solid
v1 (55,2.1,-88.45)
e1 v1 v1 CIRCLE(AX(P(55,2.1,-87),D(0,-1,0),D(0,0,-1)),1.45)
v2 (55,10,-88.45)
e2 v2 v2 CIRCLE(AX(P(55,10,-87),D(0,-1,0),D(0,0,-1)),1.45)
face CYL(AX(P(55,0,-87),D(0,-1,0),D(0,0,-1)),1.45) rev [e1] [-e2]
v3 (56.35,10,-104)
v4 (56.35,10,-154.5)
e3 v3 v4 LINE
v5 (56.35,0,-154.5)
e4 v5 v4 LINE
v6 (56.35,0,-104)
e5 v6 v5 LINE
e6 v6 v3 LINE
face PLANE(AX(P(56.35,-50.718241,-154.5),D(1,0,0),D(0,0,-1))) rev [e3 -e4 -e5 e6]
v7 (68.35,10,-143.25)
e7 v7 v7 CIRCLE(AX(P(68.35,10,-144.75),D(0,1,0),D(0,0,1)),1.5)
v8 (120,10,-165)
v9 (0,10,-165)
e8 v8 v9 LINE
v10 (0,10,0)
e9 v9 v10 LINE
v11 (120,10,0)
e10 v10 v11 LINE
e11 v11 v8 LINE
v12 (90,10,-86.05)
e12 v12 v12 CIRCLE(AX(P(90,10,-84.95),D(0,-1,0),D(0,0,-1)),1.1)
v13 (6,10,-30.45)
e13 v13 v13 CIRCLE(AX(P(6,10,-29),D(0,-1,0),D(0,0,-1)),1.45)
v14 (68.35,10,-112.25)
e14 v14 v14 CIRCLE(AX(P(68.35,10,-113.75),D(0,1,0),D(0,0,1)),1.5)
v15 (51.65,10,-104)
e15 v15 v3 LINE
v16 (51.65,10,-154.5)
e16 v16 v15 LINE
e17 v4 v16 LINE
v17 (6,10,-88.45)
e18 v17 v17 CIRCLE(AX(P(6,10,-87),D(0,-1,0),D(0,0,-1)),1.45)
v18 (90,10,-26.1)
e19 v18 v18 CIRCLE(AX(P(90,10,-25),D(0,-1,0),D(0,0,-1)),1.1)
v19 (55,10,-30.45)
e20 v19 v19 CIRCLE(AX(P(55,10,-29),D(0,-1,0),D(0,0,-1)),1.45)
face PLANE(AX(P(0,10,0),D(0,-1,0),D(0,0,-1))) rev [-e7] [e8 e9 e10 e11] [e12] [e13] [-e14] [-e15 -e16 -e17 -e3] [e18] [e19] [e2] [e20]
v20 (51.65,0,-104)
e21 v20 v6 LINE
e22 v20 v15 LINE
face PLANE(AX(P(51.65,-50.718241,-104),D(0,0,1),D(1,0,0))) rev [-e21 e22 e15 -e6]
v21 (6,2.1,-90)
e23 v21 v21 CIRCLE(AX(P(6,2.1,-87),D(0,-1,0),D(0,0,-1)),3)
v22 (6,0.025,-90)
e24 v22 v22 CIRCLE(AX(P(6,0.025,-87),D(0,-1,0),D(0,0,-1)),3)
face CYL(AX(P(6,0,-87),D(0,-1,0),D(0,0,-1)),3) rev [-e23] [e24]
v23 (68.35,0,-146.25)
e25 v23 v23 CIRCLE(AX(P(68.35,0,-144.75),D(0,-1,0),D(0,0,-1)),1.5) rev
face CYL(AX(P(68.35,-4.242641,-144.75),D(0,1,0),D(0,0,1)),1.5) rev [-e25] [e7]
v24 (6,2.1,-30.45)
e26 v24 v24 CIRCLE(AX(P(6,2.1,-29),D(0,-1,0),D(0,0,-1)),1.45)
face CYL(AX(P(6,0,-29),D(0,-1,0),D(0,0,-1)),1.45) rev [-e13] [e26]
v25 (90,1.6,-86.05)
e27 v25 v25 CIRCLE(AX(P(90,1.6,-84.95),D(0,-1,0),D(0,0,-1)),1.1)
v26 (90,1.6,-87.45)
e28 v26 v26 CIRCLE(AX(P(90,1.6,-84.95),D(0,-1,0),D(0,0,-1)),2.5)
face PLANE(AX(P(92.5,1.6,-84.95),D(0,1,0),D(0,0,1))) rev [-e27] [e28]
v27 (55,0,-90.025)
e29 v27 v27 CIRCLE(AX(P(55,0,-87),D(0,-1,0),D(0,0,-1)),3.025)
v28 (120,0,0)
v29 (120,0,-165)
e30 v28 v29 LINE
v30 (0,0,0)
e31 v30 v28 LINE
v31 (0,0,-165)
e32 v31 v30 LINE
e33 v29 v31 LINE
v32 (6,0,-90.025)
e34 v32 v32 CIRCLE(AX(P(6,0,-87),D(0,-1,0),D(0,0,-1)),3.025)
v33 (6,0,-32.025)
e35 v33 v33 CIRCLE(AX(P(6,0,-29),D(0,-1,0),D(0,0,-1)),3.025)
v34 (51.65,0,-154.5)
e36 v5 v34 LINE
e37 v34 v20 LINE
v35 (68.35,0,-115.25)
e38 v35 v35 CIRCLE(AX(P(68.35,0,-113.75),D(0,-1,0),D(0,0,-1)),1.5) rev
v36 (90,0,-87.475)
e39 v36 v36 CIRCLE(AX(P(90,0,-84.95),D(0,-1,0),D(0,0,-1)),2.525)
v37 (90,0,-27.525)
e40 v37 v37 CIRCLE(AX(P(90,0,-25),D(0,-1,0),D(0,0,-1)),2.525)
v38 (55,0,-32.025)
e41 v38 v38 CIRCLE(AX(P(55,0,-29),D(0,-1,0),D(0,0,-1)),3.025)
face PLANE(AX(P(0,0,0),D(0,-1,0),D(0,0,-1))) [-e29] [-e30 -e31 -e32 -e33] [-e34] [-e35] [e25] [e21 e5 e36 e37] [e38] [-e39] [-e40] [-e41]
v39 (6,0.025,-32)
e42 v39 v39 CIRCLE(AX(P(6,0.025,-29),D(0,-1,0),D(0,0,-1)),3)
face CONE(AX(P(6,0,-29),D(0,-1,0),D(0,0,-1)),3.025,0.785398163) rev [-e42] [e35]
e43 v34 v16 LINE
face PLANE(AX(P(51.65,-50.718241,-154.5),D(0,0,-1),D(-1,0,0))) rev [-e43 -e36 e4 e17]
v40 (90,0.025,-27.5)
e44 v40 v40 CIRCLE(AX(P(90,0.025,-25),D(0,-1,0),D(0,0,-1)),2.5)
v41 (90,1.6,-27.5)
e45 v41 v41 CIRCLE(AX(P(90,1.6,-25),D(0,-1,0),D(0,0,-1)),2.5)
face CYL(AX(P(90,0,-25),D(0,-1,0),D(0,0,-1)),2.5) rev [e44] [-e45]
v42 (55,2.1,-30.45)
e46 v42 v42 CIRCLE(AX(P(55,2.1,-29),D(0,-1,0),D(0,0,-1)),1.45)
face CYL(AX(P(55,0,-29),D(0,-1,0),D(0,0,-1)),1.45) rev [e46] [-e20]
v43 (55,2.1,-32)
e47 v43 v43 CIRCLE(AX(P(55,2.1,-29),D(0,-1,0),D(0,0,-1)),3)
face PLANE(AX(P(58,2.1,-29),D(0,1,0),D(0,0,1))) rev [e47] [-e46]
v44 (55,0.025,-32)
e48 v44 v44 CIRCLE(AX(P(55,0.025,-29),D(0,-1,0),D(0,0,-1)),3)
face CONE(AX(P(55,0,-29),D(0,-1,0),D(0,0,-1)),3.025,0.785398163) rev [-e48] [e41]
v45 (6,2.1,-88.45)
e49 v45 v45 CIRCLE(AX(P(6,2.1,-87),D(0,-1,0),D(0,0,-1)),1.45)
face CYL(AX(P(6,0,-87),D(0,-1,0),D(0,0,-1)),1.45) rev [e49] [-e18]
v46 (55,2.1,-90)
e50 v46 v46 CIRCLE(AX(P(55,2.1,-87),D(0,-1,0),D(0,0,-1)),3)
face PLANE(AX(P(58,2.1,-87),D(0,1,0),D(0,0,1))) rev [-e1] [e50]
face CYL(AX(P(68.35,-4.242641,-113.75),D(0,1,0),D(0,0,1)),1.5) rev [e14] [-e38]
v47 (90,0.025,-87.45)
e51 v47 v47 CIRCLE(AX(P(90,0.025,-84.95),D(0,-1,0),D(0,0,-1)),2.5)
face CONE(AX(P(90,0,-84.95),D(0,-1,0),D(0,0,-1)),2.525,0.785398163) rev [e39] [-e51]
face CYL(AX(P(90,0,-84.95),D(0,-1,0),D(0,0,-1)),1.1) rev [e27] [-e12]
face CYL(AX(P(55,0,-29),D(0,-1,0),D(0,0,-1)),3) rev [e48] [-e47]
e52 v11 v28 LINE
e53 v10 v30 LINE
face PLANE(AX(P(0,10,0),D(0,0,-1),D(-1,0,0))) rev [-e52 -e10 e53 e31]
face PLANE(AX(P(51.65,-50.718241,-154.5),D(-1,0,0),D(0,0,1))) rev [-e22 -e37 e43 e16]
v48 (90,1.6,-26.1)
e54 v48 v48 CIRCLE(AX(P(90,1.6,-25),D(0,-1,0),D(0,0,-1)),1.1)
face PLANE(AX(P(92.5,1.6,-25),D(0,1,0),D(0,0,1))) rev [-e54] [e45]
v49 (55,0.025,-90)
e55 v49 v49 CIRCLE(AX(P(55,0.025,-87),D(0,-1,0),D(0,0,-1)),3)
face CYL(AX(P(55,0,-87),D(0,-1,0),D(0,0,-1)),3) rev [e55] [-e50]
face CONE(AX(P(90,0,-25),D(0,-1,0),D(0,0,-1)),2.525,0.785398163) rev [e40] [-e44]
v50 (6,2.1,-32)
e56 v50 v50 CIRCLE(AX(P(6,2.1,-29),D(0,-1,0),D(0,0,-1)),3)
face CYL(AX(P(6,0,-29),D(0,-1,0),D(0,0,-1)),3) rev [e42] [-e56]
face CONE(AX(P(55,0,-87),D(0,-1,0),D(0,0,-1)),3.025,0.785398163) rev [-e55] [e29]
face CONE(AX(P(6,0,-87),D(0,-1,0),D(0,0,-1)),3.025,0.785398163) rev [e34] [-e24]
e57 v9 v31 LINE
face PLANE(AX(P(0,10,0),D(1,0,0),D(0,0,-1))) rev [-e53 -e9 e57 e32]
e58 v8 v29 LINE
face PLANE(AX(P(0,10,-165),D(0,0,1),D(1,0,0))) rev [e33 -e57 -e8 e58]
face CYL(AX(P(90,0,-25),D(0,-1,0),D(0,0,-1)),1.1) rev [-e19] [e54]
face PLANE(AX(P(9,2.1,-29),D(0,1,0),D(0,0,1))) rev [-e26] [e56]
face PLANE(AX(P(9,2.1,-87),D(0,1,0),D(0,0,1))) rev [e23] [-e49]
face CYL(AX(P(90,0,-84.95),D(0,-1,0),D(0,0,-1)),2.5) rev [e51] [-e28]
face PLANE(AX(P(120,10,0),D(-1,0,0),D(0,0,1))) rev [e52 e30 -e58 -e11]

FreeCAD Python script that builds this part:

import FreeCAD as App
import Part
import Sketcher

V = App.Vector
Q = App.Units.Quantity


def add_polygon(sketch, points):
    """Adds a closed chain of lines whose ends are joined by coincident constraints."""
    first, n = sketch.GeometryCount, len(points)
    for a, b in zip(points, points[1:] + points[:1]):
        sketch.addGeometry(Part.LineSegment(App.Vector(*a, 0), App.Vector(*b, 0)), False)
    for i in range(n):
        sketch.addConstraint(Sketcher.Constraint("Coincident", first + i, 2, first + (i + 1) % n, 1))

doc = App.newDocument("Part")
body = doc.addObject("PartDesign::Body", "Body")

# Sketch on XZ plane
sketch1 = doc.addObject("Sketcher::SketchObject", "Sketch")
body.addObject(sketch1)
sketch1.AttachmentSupport = (doc.XZ_Plane, [""])
sketch1.MapMode = "FlatFace"
add_polygon(sketch1, [(0, -165), (0, 0), (120, 0), (120, -165)])  # lines 0-3
sketch1.addConstraint(Sketcher.Constraint("Vertical", 0))
sketch1.addConstraint(Sketcher.Constraint("Horizontal", 1))
sketch1.addConstraint(Sketcher.Constraint("Vertical", 2))
sketch1.addConstraint(Sketcher.Constraint("Horizontal", 3))
sketch1.addConstraint(Sketcher.Constraint("Coincident", 0, 2, -1, 1))
sketch1.addConstraint(Sketcher.Constraint("DistanceX", 1, 1, 1, 2, Q("120 mm")))
sketch1.addConstraint(Sketcher.Constraint("DistanceY", 0, 1, 0, 2, Q("165 mm")))
pad1 = doc.addObject("PartDesign::Pad", "Pad")
body.addObject(pad1)
pad1.Profile = sketch1
pad1.Length = 10
pad1.Reversed = True

# Sketch on YZ plane
sketch2 = doc.addObject("Sketcher::SketchObject", "Sketch001")
body.addObject(sketch2)
sketch2.AttachmentSupport = (doc.YZ_Plane, [""])
sketch2.MapMode = "FlatFace"
sketch2.AttachmentOffset = App.Placement(V(0, 0, 6), App.Rotation())
add_polygon(sketch2, [(10, -29), (0, -29), (0, -32.025), (0.025, -32), (2.1, -32), (2.1, -30.45), (10, -30.45)])  # lines 0-6
sketch2.addGeometry(Part.LineSegment(V(0, -29, 0), V(10, -29, 0)), True)  # axis
sketch2.addConstraint(Sketcher.Constraint("Horizontal", 0))
sketch2.addConstraint(Sketcher.Constraint("Vertical", 1))
sketch2.addConstraint(Sketcher.Constraint("Horizontal", 3))
sketch2.addConstraint(Sketcher.Constraint("Vertical", 4))
sketch2.addConstraint(Sketcher.Constraint("Horizontal", 5))
sketch2.addConstraint(Sketcher.Constraint("Vertical", 6))
sketch2.addConstraint(Sketcher.Constraint("Horizontal", 7))
sketch2.addConstraint(Sketcher.Constraint("Coincident", 7, 1, 0, 2))
sketch2.addConstraint(Sketcher.Constraint("PointOnObject", 0, 2, -2))
sketch2.addConstraint(Sketcher.Constraint("Vertical", 5, 2, 7, 2))
sketch2.addConstraint(Sketcher.Constraint("DistanceX", 0, 2, 0, 1, Q("10 mm")))
sketch2.addConstraint(Sketcher.Constraint("Angle", 2, Q("45 deg")))
sketch2.addConstraint(Sketcher.Constraint("DistanceX", 5, 1, 5, 2, Q("7.9 mm")))
sketch2.addConstraint(Sketcher.Constraint("DistanceY", 0, 2, -1, 1, Q("29 mm")))
sketch2.addConstraint(Sketcher.Constraint("DistanceY", 2, 2, -1, 1, Q("32 mm")))
sketch2.addConstraint(Sketcher.Constraint("DistanceY", 4, 1, 4, 2, Q("1.55 mm")))
sketch2.addConstraint(Sketcher.Constraint("DistanceX", 3, 1, 3, 2, Q("2.075 mm")))
groove = doc.addObject("PartDesign::Groove", "Groove")
body.addObject(groove)
groove.Profile = sketch2
groove.ReferenceAxis = (sketch2, ["Axis0"])
groove.Angle = 360
doc.recompute()

linearpattern = doc.addObject("PartDesign::LinearPattern", "LinearPattern")
body.addObject(linearpattern)
linearpattern.Originals = [groove]
linearpattern.Direction = (doc.X_Axis, [""])
linearpattern.Mode = "offset"
linearpattern.Offset = 49
linearpattern.Occurrences = 2
body.Tip = linearpattern
doc.recompute()

datumline = doc.addObject("PartDesign::Line", "DatumLine")
body.addObject(datumline)
datumline.Placement = App.Placement(V(0, 0, 0), App.Rotation(V(0, 0, 1), V(0.645351649, 0, -0.763885626)))
linearpattern2 = doc.addObject("PartDesign::LinearPattern", "LinearPattern001")
body.addObject(linearpattern2)
linearpattern2.Originals = [groove]
linearpattern2.Direction = (datumline, [""])
linearpattern2.Mode = "offset"
linearpattern2.Offset = 75.927597
linearpattern2.Occurrences = 2
body.Tip = linearpattern2
doc.recompute()

linearpattern3 = doc.addObject("PartDesign::LinearPattern", "LinearPattern002")
body.addObject(linearpattern3)
linearpattern3.Originals = [groove]
linearpattern3.Direction = (doc.Z_Axis, [""])
linearpattern3.Mode = "offset"
linearpattern3.Offset = 58
linearpattern3.Occurrences = 2
linearpattern3.Reversed = True
body.Tip = linearpattern3

# Sketch on YZ plane
sketch3 = doc.addObject("Sketcher::SketchObject", "Sketch002")
body.addObject(sketch3)
sketch3.AttachmentSupport = (doc.YZ_Plane, [""])
sketch3.MapMode = "FlatFace"
sketch3.AttachmentOffset = App.Placement(V(0, 0, 90), App.Rotation())
add_polygon(sketch3, [(10, -25), (0, -25), (0, -27.525), (0.025, -27.5), (1.6, -27.5), (1.6, -26.1), (10, -26.1)])  # lines 0-6
sketch3.addGeometry(Part.LineSegment(V(0, -25, 0), V(10, -25, 0)), True)  # axis
sketch3.addConstraint(Sketcher.Constraint("Horizontal", 0))
sketch3.addConstraint(Sketcher.Constraint("Vertical", 1))
sketch3.addConstraint(Sketcher.Constraint("Horizontal", 3))
sketch3.addConstraint(Sketcher.Constraint("Vertical", 4))
sketch3.addConstraint(Sketcher.Constraint("Horizontal", 5))
sketch3.addConstraint(Sketcher.Constraint("Vertical", 6))
sketch3.addConstraint(Sketcher.Constraint("Horizontal", 7))
sketch3.addConstraint(Sketcher.Constraint("Coincident", 7, 1, 0, 2))
sketch3.addConstraint(Sketcher.Constraint("PointOnObject", 0, 2, -2))
sketch3.addConstraint(Sketcher.Constraint("Vertical", 5, 2, 7, 2))
sketch3.addConstraint(Sketcher.Constraint("DistanceX", 0, 2, 0, 1, Q("10 mm")))
sketch3.addConstraint(Sketcher.Constraint("Angle", 2, Q("45 deg")))
sketch3.addConstraint(Sketcher.Constraint("DistanceX", 5, 1, 5, 2, Q("8.4 mm")))
sketch3.addConstraint(Sketcher.Constraint("DistanceY", 4, 1, 4, 2, Q("1.4 mm")))
sketch3.addConstraint(Sketcher.Constraint("DistanceY", 6, 1, 6, 2, Q("1.1 mm")))
sketch3.addConstraint(Sketcher.Constraint("DistanceY", 0, 2, -1, 1, Q("25 mm")))
sketch3.addConstraint(Sketcher.Constraint("DistanceX", 3, 1, 3, 2, Q("1.575 mm")))
groove2 = doc.addObject("PartDesign::Groove", "Groove001")
body.addObject(groove2)
groove2.Profile = sketch3
groove2.ReferenceAxis = (sketch3, ["Axis0"])
groove2.Angle = 360
doc.recompute()

linearpattern4 = doc.addObject("PartDesign::LinearPattern", "LinearPattern003")
body.addObject(linearpattern4)
linearpattern4.Originals = [groove2]
linearpattern4.Direction = (doc.Z_Axis, [""])
linearpattern4.Mode = "offset"
linearpattern4.Offset = 59.95
linearpattern4.Occurrences = 2
linearpattern4.Reversed = True
body.Tip = linearpattern4

# Sketch on XZ plane
sketch4 = doc.addObject("Sketcher::SketchObject", "Sketch003")
body.addObject(sketch4)
sketch4.AttachmentSupport = (doc.XZ_Plane, [""])
sketch4.MapMode = "FlatFace"
sketch4.AttachmentOffset = App.Placement(V(0, 0, -10), App.Rotation())
add_polygon(sketch4, [(51.65, -154.5), (51.65, -104), (56.35, -104), (56.35, -154.5)])  # lines 0-3
sketch4.addConstraint(Sketcher.Constraint("Vertical", 0))
sketch4.addConstraint(Sketcher.Constraint("Horizontal", 1))
sketch4.addConstraint(Sketcher.Constraint("Vertical", 2))
sketch4.addConstraint(Sketcher.Constraint("Horizontal", 3))
sketch4.addConstraint(Sketcher.Constraint("DistanceX", 1, 1, 1, 2, Q("4.7 mm")))
sketch4.addConstraint(Sketcher.Constraint("DistanceY", 0, 1, 0, 2, Q("50.5 mm")))
sketch4.addConstraint(Sketcher.Constraint("DistanceY", 0, 2, -1, 1, Q("104 mm")))
sketch4.addConstraint(Sketcher.Constraint("DistanceX", -1, 1, 0, 2, Q("51.65 mm")))
pocket1 = doc.addObject("PartDesign::Pocket", "Pocket")
body.addObject(pocket1)
pocket1.Profile = sketch4
pocket1.Length = 10
pocket1.Reversed = True

# Sketch on XZ plane
sketch5 = doc.addObject("Sketcher::SketchObject", "Sketch004")
body.addObject(sketch5)
sketch5.AttachmentSupport = (doc.XZ_Plane, [""])
sketch5.MapMode = "FlatFace"
sketch5.AttachmentOffset = App.Placement(V(0, 0, -10), App.Rotation())
sketch5.addGeometry(Part.Circle(V(68.35, -144.75, 0), V(0, 0, 1), 1.5), False)
sketch5.addGeometry(Part.Circle(V(68.35, -113.75, 0), V(0, 0, 1), 1.5), False)
sketch5.addConstraint(Sketcher.Constraint("Equal", 0, 1))
sketch5.addConstraint(Sketcher.Constraint("Vertical", 0, 3, 1, 3))
sketch5.addConstraint(Sketcher.Constraint("Diameter", 0, Q("3 mm")))
sketch5.addConstraint(Sketcher.Constraint("DistanceY", 0, 3, 1, 3, Q("31 mm")))
sketch5.addConstraint(Sketcher.Constraint("DistanceX", -1, 1, 0, 3, Q("68.35 mm")))
sketch5.addConstraint(Sketcher.Constraint("DistanceY", 0, 3, -1, 1, Q("144.75 mm")))
pocket2 = doc.addObject("PartDesign::Pocket", "Pocket001")
body.addObject(pocket2)
pocket2.Profile = sketch5
pocket2.Length = 10
pocket2.Reversed = True

doc.recompute()
